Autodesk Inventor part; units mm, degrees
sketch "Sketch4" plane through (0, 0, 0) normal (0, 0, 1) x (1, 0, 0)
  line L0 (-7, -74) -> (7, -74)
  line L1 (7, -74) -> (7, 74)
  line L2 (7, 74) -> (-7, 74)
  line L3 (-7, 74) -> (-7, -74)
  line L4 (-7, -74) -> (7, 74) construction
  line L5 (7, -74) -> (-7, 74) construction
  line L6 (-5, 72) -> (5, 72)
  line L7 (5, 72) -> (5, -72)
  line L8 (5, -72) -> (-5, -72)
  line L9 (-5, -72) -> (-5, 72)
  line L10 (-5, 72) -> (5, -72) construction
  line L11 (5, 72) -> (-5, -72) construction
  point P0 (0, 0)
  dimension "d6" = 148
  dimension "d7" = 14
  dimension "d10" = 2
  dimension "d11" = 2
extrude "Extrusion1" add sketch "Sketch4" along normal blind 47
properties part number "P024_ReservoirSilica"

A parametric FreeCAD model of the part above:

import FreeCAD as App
import Part
import Sketcher
from FreeCAD import Vector

doc = App.newDocument("Part")
body = doc.addObject("PartDesign::Body", "Body")

# Sketch on XY plane
sketch1 = body.newObject("Sketcher::SketchObject", "Sketch")
sketch1.AttachmentSupport = (doc.getObject("XY_Plane"), [""])
sketch1.MapMode = "FlatFace"
sketch1.addGeometry(Part.LineSegment(Vector(-7, 74, 0), Vector(-7, -74, 0)), False)
sketch1.addGeometry(Part.LineSegment(Vector(-7, -74, 0), Vector(7, -74, 0)), False)
sketch1.addGeometry(Part.LineSegment(Vector(7, -74, 0), Vector(7, 74, 0)), False)
sketch1.addGeometry(Part.LineSegment(Vector(7, 74, 0), Vector(-7, 74, 0)), False)
sketch1.addGeometry(Part.LineSegment(Vector(-5, -72, 0), Vector(-5, 72, 0)), False)
sketch1.addGeometry(Part.LineSegment(Vector(-5, 72, 0), Vector(5, 72, 0)), False)
sketch1.addGeometry(Part.LineSegment(Vector(5, 72, 0), Vector(5, -72, 0)), False)
sketch1.addGeometry(Part.LineSegment(Vector(5, -72, 0), Vector(-5, -72, 0)), False)
sketch1.addConstraint(Sketcher.Constraint("Coincident", 0, 2, 1, 1))
sketch1.addConstraint(Sketcher.Constraint("Coincident", 1, 2, 2, 1))
sketch1.addConstraint(Sketcher.Constraint("Coincident", 2, 2, 3, 1))
sketch1.addConstraint(Sketcher.Constraint("Coincident", 3, 2, 0, 1))
sketch1.addConstraint(Sketcher.Constraint("Coincident", 4, 2, 5, 1))
sketch1.addConstraint(Sketcher.Constraint("Coincident", 5, 2, 6, 1))
sketch1.addConstraint(Sketcher.Constraint("Coincident", 6, 2, 7, 1))
sketch1.addConstraint(Sketcher.Constraint("Coincident", 7, 2, 4, 1))
sketch1.addConstraint(Sketcher.Constraint("Vertical", 0))
sketch1.addConstraint(Sketcher.Constraint("Horizontal", 1))
sketch1.addConstraint(Sketcher.Constraint("Vertical", 2))
sketch1.addConstraint(Sketcher.Constraint("Horizontal", 3))
sketch1.addConstraint(Sketcher.Constraint("Vertical", 4))
sketch1.addConstraint(Sketcher.Constraint("Horizontal", 5))
sketch1.addConstraint(Sketcher.Constraint("Vertical", 6))
sketch1.addConstraint(Sketcher.Constraint("Horizontal", 7))
sketch1.addConstraint(Sketcher.Constraint("Symmetric", 0, 2, 2, 2, -1, 1))
sketch1.addConstraint(Sketcher.Constraint("Symmetric", 4, 2, 6, 2, -1, 1))
sketch1.addConstraint(Sketcher.Constraint("DistanceX", 1, 1, 1, 2, 14.0))
sketch1.addConstraint(Sketcher.Constraint("DistanceY", 0, 2, 0, 1, 148.0))
sketch1.addConstraint(Sketcher.Constraint("DistanceX", 3, 2, 4, 2, 2.0))
sketch1.addConstraint(Sketcher.Constraint("DistanceY", 4, 2, 3, 2, 2.0))
pad1 = body.newObject("PartDesign::Pad", "Pad")
pad1.Profile = sketch1
pad1.Length = 47

doc.recompute()
